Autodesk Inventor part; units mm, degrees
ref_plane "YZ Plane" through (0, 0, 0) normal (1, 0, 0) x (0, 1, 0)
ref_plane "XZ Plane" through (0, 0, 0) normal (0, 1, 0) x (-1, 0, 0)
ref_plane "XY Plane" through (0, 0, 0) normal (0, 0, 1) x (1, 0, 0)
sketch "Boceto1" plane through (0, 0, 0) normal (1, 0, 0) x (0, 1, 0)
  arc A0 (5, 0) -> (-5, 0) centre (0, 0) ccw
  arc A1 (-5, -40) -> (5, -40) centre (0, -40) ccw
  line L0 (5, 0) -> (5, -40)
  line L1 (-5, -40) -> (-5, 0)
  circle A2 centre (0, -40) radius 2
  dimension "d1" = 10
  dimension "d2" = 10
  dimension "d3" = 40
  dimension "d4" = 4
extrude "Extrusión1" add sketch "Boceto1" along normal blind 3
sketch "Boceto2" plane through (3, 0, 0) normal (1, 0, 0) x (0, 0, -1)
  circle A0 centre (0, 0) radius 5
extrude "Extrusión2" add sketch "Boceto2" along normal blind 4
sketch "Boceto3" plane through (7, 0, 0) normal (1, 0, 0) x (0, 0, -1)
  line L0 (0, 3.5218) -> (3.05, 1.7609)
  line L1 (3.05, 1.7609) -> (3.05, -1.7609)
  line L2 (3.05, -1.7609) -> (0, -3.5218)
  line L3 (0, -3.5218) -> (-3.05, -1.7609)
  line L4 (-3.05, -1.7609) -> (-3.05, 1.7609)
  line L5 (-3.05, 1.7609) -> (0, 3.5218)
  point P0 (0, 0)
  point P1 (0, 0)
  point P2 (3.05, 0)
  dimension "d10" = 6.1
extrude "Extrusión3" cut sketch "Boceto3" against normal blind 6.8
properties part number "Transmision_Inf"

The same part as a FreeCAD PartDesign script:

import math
import FreeCAD as App
import Part
import Sketcher
from FreeCAD import Vector
Q = App.Units.Quantity


def add_polygon(sketch, points):
    """Adds a closed chain of lines whose ends are joined by coincident constraints."""
    first, n = sketch.GeometryCount, len(points)
    for a, b in zip(points, points[1:] + points[:1]):
        sketch.addGeometry(Part.LineSegment(App.Vector(*a, 0), App.Vector(*b, 0)), False)
    for i in range(n):
        sketch.addConstraint(Sketcher.Constraint("Coincident", first + i, 2, first + (i + 1) % n, 1))

doc = App.newDocument("Part")
body = doc.addObject("PartDesign::Body", "Body")

# Sketch on YZ plane
sketch1 = body.newObject("Sketcher::SketchObject", "Sketch")
sketch1.AttachmentSupport = (doc.getObject("YZ_Plane"), [""])
sketch1.MapMode = "FlatFace"
sketch1.addGeometry(Part.LineSegment(Vector(5, -40, 0), Vector(5, 0, 0)), False)
sketch1.addGeometry(Part.ArcOfCircle(Part.Circle(Vector(0, 0, 0), Vector(0, 0, 1), 5), math.radians(0), math.radians(180)), False)
sketch1.addGeometry(Part.LineSegment(Vector(-5, 0, 0), Vector(-5, -40, 0)), False)
sketch1.addGeometry(Part.ArcOfCircle(Part.Circle(Vector(0, -40, 0), Vector(0, 0, 1), 5), math.radians(180), math.radians(360)), False)
sketch1.addGeometry(Part.Circle(Vector(0, -40, 0), Vector(0, 0, 1), 2), False)
sketch1.addConstraint(Sketcher.Constraint("Tangent", 0, 2, 1, 1))
sketch1.addConstraint(Sketcher.Constraint("Tangent", 1, 2, 2, 1))
sketch1.addConstraint(Sketcher.Constraint("Tangent", 2, 2, 3, 1))
sketch1.addConstraint(Sketcher.Constraint("Tangent", 3, 2, 0, 1))
sketch1.addConstraint(Sketcher.Constraint("Vertical", 0))
sketch1.addConstraint(Sketcher.Constraint("Vertical", 2))
sketch1.addConstraint(Sketcher.Constraint("Coincident", 1, 3, -1, 1))
sketch1.addConstraint(Sketcher.Constraint("Coincident", 4, 3, 3, 3))
sketch1.addConstraint(Sketcher.Constraint("Diameter", 4, Q("4 mm")))
sketch1.addConstraint(Sketcher.Constraint("Radius", 1, Q("5 mm")))
sketch1.addConstraint(Sketcher.Constraint("DistanceY", 0, 1, 0, 2, Q("40 mm")))
pad1 = body.newObject("PartDesign::Pad", "Pad")
pad1.Profile = sketch1
pad1.Length = 3

# Sketch on YZ plane
sketch2 = body.newObject("Sketcher::SketchObject", "Sketch001")
sketch2.AttachmentSupport = (doc.getObject("YZ_Plane"), [""])
sketch2.MapMode = "FlatFace"
sketch2.AttachmentOffset = App.Placement(Vector(0, 0, 3), App.Rotation())
sketch2.addGeometry(Part.Circle(Vector(0, 0, 0), Vector(0, 0, 1), 5), False)
sketch2.addConstraint(Sketcher.Constraint("Coincident", 0, 3, -1, 1))
sketch2.addConstraint(Sketcher.Constraint("Diameter", 0, Q("10 mm")))
pad2 = body.newObject("PartDesign::Pad", "Pad001")
pad2.Profile = sketch2
pad2.Length = 4

# Sketch on YZ plane
sketch3 = body.newObject("Sketcher::SketchObject", "Sketch002")
sketch3.AttachmentSupport = (doc.getObject("YZ_Plane"), [""])
sketch3.MapMode = "FlatFace"
sketch3.AttachmentOffset = App.Placement(Vector(0, 0, 7), App.Rotation())
add_polygon(sketch3, [(1.8, -3), (3.5, 0), (1.8, 3), (-1.8, 3), (-3.5, 0), (-1.8, -3)])  # lines 0-5
sketch3.addConstraint(Sketcher.Constraint("Horizontal", 2))
sketch3.addConstraint(Sketcher.Constraint("Horizontal", 5))
sketch3.addConstraint(Sketcher.Constraint("Symmetric", 0, 2, 3, 2, -1, 1))
sketch3.addConstraint(Sketcher.Constraint("Symmetric", 1, 2, 4, 2, -1, 1))
sketch3.addConstraint(Sketcher.Constraint("PointOnObject", 0, 2, -1))
sketch3.addConstraint(Sketcher.Constraint("Parallel", 0, 3))
sketch3.addConstraint(Sketcher.Constraint("Vertical", 2, 2, 4, 2))
sketch3.addConstraint(Sketcher.Constraint("DistanceY", 4, 2, 2, 2, Q("6.1 mm")))
sketch3.addConstraint(Sketcher.Constraint("Angle", 0, Q("60.0003 deg")))
sketch3.addConstraint(Sketcher.Constraint("DistanceX", 2, 2, 2, 1, Q("3.5218 mm")))
pocket1 = body.newObject("PartDesign::Pocket", "Pocket")
pocket1.Profile = sketch3
pocket1.Length = 6.8

doc.recompute()
